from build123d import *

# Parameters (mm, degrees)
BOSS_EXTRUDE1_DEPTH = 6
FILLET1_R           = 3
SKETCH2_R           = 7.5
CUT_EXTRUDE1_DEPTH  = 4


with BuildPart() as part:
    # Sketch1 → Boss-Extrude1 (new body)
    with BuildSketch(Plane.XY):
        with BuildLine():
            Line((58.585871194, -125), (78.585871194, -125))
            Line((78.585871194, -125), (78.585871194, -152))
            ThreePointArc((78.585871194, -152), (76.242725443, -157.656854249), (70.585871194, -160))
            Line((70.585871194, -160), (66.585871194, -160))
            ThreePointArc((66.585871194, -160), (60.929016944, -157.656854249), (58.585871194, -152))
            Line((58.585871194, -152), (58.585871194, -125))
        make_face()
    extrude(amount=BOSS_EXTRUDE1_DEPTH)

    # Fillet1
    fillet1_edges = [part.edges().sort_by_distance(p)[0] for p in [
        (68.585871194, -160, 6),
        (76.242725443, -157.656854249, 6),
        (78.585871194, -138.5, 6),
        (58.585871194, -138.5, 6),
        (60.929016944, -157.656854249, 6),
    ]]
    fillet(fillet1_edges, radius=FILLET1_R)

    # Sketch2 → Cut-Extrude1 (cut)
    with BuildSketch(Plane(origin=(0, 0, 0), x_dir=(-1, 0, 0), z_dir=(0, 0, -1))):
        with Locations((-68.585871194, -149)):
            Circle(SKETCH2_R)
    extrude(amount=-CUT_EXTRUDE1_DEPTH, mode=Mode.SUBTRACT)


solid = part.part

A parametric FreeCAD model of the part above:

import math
import FreeCAD as App
import Part
import Sketcher


def edges_at(feature, points):
    """Names of the edges that pass closest to the given points."""
    edges = feature.Shape.Edges
    near = lambda p: min(range(len(edges)), key=lambda i: edges[i].distToShape(Part.Vertex(*p))[0])
    return sorted({f"Edge{near(p) + 1}" for p in points})

doc = App.newDocument("Part")
body = doc.addObject("PartDesign::Body", "Body")

# Sketch on XY plane
sketch1 = body.newObject("Sketcher::SketchObject", "Sketch")
sketch1.AttachmentSupport = (doc.getObject("XY_Plane"), [""])
sketch1.MapMode = "FlatFace"
sketch1.addGeometry(Part.LineSegment(App.Vector(78.6, -125, 0), App.Vector(58.6, -125, 0)), False)
sketch1.addGeometry(Part.LineSegment(App.Vector(58.6, -125, 0), App.Vector(58.6, -152, 0)), False)
sketch1.addGeometry(Part.ArcOfCircle(Part.Circle(App.Vector(66.6, -152, 0), App.Vector(0, 0, 1), 8), math.radians(180), math.radians(270)), False)
sketch1.addGeometry(Part.LineSegment(App.Vector(66.6, -160, 0), App.Vector(70.6, -160, 0)), False)
sketch1.addGeometry(Part.ArcOfCircle(Part.Circle(App.Vector(70.6, -152, 0), App.Vector(0, 0, 1), 8), math.radians(-90), math.radians(0)), False)
sketch1.addGeometry(Part.LineSegment(App.Vector(78.6, -152, 0), App.Vector(78.6, -125, 0)), False)
sketch1.addConstraint(Sketcher.Constraint("Coincident", 0, 2, 1, 1))
sketch1.addConstraint(Sketcher.Constraint("Tangent", 1, 2, 2, 1))
sketch1.addConstraint(Sketcher.Constraint("Tangent", 2, 2, 3, 1))
sketch1.addConstraint(Sketcher.Constraint("Tangent", 3, 2, 4, 1))
sketch1.addConstraint(Sketcher.Constraint("Tangent", 4, 2, 5, 1))
sketch1.addConstraint(Sketcher.Constraint("Coincident", 5, 2, 0, 1))
sketch1.addConstraint(Sketcher.Constraint("Horizontal", 0))
sketch1.addConstraint(Sketcher.Constraint("Vertical", 1))
sketch1.addConstraint(Sketcher.Constraint("Horizontal", 3))
sketch1.addConstraint(Sketcher.Constraint("Vertical", 5))
sketch1.addConstraint(Sketcher.Constraint("Equal", 2, 4))
sketch1.addConstraint(Sketcher.Constraint("Radius", 2, 8.0))
sketch1.addConstraint(Sketcher.Constraint("DistanceX", 0, 2, 0, 1, 20.0))
sketch1.addConstraint(Sketcher.Constraint("DistanceY", 1, 2, 1, 1, 27.0))
sketch1.addConstraint(Sketcher.Constraint("DistanceY", 2, 3, -1, 1, 152.0))
sketch1.addConstraint(Sketcher.Constraint("DistanceX", -1, 1, 2, 3, 66.585871))
pad1 = body.newObject("PartDesign::Pad", "Pad")
pad1.Profile = sketch1
pad1.Length = 6
doc.recompute()

fillet = body.newObject("PartDesign::Fillet", "Fillet")
fillet.Base = (pad1, edges_at(pad1, [
    (68.586, -160, 6),
    (76.243, -157.657, 6),
    (78.586, -138.5, 6),
    (58.586, -138.5, 6),
    (60.929, -157.657, 6),
]))
fillet.Radius = 3

# Sketch on XY plane
sketch2 = body.newObject("Sketcher::SketchObject", "Sketch001")
sketch2.AttachmentSupport = (doc.getObject("XY_Plane"), [""])
sketch2.MapMode = "FlatFace"
sketch2.addGeometry(Part.Circle(App.Vector(69, -149, 0), App.Vector(0, 0, 1), 8), False)
sketch2.addConstraint(Sketcher.Constraint("Diameter", 0, 15.0))
sketch2.addConstraint(Sketcher.Constraint("DistanceY", 0, 3, -1, 1, 149.0))
sketch2.addConstraint(Sketcher.Constraint("DistanceX", -1, 1, 0, 3, 68.585871))
pocket1 = body.newObject("PartDesign::Pocket", "Pocket")
pocket1.Profile = sketch2
pocket1.Length = 4
pocket1.Reversed = True

doc.recompute()
